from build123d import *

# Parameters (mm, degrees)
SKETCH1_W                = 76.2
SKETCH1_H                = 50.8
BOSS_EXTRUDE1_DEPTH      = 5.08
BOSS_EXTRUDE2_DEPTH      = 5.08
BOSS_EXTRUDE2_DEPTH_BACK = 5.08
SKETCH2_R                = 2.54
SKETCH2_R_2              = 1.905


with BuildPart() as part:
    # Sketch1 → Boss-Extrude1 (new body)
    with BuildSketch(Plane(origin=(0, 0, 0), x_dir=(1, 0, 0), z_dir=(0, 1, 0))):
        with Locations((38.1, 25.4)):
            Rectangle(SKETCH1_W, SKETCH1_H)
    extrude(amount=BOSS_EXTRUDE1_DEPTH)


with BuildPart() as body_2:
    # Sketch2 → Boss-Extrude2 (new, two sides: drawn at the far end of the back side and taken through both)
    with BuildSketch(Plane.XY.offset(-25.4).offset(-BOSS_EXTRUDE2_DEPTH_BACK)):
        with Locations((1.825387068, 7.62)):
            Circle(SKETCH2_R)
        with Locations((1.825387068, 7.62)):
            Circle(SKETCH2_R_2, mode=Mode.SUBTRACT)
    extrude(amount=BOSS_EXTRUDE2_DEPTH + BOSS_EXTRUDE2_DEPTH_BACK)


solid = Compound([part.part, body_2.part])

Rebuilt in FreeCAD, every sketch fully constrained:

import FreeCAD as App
import Part
import Sketcher
Q = App.Units.Quantity


def add_polygon(sketch, points):
    """Adds a closed chain of lines whose ends are joined by coincident constraints."""
    first, n = sketch.GeometryCount, len(points)
    for a, b in zip(points, points[1:] + points[:1]):
        sketch.addGeometry(Part.LineSegment(App.Vector(*a, 0), App.Vector(*b, 0)), False)
    for i in range(n):
        sketch.addConstraint(Sketcher.Constraint("Coincident", first + i, 2, first + (i + 1) % n, 1))

doc = App.newDocument("Part")
body = doc.addObject("PartDesign::Body", "Body")

# Sketch on XZ plane
sketch1 = body.newObject("Sketcher::SketchObject", "Sketch")
sketch1.AttachmentSupport = (doc.getObject("XZ_Plane"), [""])
sketch1.MapMode = "FlatFace"
add_polygon(sketch1, [(0, -50.8), (0, 0), (76.2, 0), (76.2, -50.8)])  # lines 0-3
sketch1.addConstraint([
    Sketcher.Constraint("Vertical", 0),
    Sketcher.Constraint("Horizontal", 1),
    Sketcher.Constraint("Vertical", 2),
    Sketcher.Constraint("Horizontal", 3),
    Sketcher.Constraint("Coincident", 0, 2, -1, 1),
    Sketcher.Constraint("DistanceX", 1, 1, 1, 2, Q("3 in")),
    Sketcher.Constraint("DistanceY", 0, 1, 0, 2, Q("2 in")),
])
pad1 = body.newObject("PartDesign::Pad", "Pad")
pad1.Profile = sketch1
pad1.Length = Q("0.2 in")
pad1.Reversed = True
body2 = doc.addObject("PartDesign::Body", "Body001")

# Sketch on XY plane
sketch2 = body2.newObject("Sketcher::SketchObject", "Sketch001")
sketch2.AttachmentSupport = (doc.getObject("XY_Plane001"), [""])
sketch2.MapMode = "FlatFace"
sketch2.AttachmentOffset = App.Placement(App.Vector(0, 0, -1 * 25.4), App.Rotation())
sketch2.addGeometry([
    Part.Circle(App.Vector(1.825387, 7.62, 0), App.Vector(0, 0, 1), 2.54),
    Part.Circle(App.Vector(1.825387, 7.62, 0), App.Vector(0, 0, 1), 1.905),
], False)
sketch2.addConstraint([
    Sketcher.Constraint("Coincident", 1, 3, 0, 3),
    Sketcher.Constraint("Diameter", 0, Q("0.2 in")),
    Sketcher.Constraint("Diameter", 1, Q("0.15 in")),
    Sketcher.Constraint("DistanceY", -1, 1, 0, 3, Q("0.3 in")),
    Sketcher.Constraint("DistanceX", -1, 1, 0, 3, Q("1.825387 mm")),
])
pad2 = body2.newObject("PartDesign::Pad", "Pad001")
pad2.Profile = sketch2
pad2.Type = "TwoLengths"
pad2.Length = Q("0.2 in")
pad2.Length2 = Q("0.2 in")

doc.recompute()
